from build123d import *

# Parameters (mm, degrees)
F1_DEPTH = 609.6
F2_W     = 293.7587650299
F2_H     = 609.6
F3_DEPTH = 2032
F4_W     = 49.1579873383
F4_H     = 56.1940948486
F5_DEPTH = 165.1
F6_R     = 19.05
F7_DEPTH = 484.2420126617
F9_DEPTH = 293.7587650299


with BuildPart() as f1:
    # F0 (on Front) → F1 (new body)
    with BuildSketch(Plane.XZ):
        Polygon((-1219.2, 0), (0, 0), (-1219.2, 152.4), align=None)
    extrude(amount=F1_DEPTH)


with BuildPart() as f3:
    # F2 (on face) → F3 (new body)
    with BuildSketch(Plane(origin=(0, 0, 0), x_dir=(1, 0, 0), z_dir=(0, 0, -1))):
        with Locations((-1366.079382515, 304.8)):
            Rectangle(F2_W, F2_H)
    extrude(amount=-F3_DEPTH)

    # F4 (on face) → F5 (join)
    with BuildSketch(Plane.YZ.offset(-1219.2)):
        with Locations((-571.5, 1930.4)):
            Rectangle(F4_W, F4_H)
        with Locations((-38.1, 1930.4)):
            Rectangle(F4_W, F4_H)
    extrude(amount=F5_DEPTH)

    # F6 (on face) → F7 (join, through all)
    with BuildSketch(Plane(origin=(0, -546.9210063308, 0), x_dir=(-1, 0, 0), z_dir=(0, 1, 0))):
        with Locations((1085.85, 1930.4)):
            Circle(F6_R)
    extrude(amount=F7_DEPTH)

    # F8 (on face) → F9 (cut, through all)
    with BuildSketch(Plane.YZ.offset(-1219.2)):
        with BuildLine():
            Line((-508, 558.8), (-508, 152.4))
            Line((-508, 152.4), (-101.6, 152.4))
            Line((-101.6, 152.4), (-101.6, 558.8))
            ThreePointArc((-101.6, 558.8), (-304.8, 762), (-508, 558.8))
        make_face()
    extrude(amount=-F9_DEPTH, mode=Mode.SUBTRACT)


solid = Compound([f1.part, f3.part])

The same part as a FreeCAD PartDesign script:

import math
import FreeCAD as App
import Part
import Sketcher

V = App.Vector
Q = App.Units.Quantity


def add_polygon(sketch, points):
    """Adds a closed chain of lines whose ends are joined by coincident constraints."""
    first, n = sketch.GeometryCount, len(points)
    for a, b in zip(points, points[1:] + points[:1]):
        sketch.addGeometry(Part.LineSegment(App.Vector(*a, 0), App.Vector(*b, 0)), False)
    for i in range(n):
        sketch.addConstraint(Sketcher.Constraint("Coincident", first + i, 2, first + (i + 1) % n, 1))

doc = App.newDocument("Part")
body = doc.addObject("PartDesign::Body", "Body")

# Sketch on XZ plane
sketch1 = body.newObject("Sketcher::SketchObject", "Sketch")
sketch1.AttachmentSupport = (doc.getObject("XZ_Plane"), [""])
sketch1.MapMode = "FlatFace"
add_polygon(sketch1, [(-1219.2, 0), (0, 0), (-1219.2, 152.4)])  # lines 0-2
sketch1.addConstraint([
    Sketcher.Constraint("Horizontal", 0),
    Sketcher.Constraint("Vertical", 2),
    Sketcher.Constraint("Coincident", 0, 2, -1, 1),
    Sketcher.Constraint("DistanceX", 0, 1, 0, 2, Q("48 in")),
    Sketcher.Constraint("DistanceY", 2, 2, 2, 1, Q("6 in")),
])
pad1 = body.newObject("PartDesign::Pad", "Pad")
pad1.Profile = sketch1
pad1.Length = Q("24 in")
body2 = doc.addObject("PartDesign::Body", "Body001")

# Sketch on XY plane
sketch2 = body2.newObject("Sketcher::SketchObject", "Sketch001")
sketch2.AttachmentSupport = (doc.getObject("XY_Plane001"), [""])
sketch2.MapMode = "FlatFace"
add_polygon(sketch2, [(-1512.958765, -609.6), (-1512.958765, 0), (-1219.2, 0), (-1219.2, -609.6)])  # lines 0-3
sketch2.addConstraint([
    Sketcher.Constraint("Vertical", 0),
    Sketcher.Constraint("Horizontal", 1),
    Sketcher.Constraint("Vertical", 2),
    Sketcher.Constraint("Horizontal", 3),
    Sketcher.Constraint("PointOnObject", 0, 2, -1),
    Sketcher.Constraint("DistanceY", 0, 1, 0, 2, Q("24 in")),
    Sketcher.Constraint("DistanceX", 1, 2, -1, 1, Q("48 in")),
    Sketcher.Constraint("DistanceX", 1, 1, 1, 2, Q("293.758765 mm")),
])
pad2 = body2.newObject("PartDesign::Pad", "Pad001")
pad2.Profile = sketch2
pad2.Length = Q("80 in")

# Sketch on YZ plane
sketch3 = body2.newObject("Sketcher::SketchObject", "Sketch002")
sketch3.AttachmentSupport = (doc.getObject("YZ_Plane001"), [""])
sketch3.MapMode = "FlatFace"
sketch3.AttachmentOffset = App.Placement(V(0, 0, -48 * 25.4), App.Rotation())
add_polygon(sketch3, [(-596.078994, 1958.497047), (-596.078994, 1902.302953), (-546.921006, 1902.302953), (-546.921006, 1958.497047)])  # lines 0-3
add_polygon(sketch3, [(-62.678994, 1958.497047), (-62.678994, 1902.302953), (-13.521006, 1902.302953), (-13.521006, 1958.497047)])  # lines 4-7
sketch3.addConstraint([
    Sketcher.Constraint("Vertical", 0),
    Sketcher.Constraint("Horizontal", 1),
    Sketcher.Constraint("Vertical", 2),
    Sketcher.Constraint("Horizontal", 3),
    Sketcher.Constraint("Vertical", 4),
    Sketcher.Constraint("Horizontal", 5),
    Sketcher.Constraint("Vertical", 6),
    Sketcher.Constraint("Horizontal", 7),
    Sketcher.Constraint("Horizontal", 1, 2, 4, 2),
    Sketcher.Constraint("Horizontal", 3, 2, 6, 2),
    Sketcher.Constraint("Equal", 3, 5),
    Sketcher.Constraint("DistanceX", 0, 2, 4, 2, Q("21 in")),
    Sketcher.Constraint("DistanceX", 1, 1, 1, 2, Q("49.157987 mm")),
    Sketcher.Constraint("DistanceY", 0, 2, 0, 1, Q("56.194095 mm")),
    Sketcher.Constraint("DistanceX", 0, 2, -1, 1, Q("596.078994 mm")),
    Sketcher.Constraint("DistanceY", -1, 1, 0, 2, Q("1902.302953 mm")),
])
pad3 = body2.newObject("PartDesign::Pad", "Pad002")
pad3.Profile = sketch3
pad3.Length = Q("6.5 in")

# Sketch on XZ plane
sketch4 = body2.newObject("Sketcher::SketchObject", "Sketch003")
sketch4.AttachmentSupport = (doc.getObject("XZ_Plane001"), [""])
sketch4.MapMode = "FlatFace"
sketch4.AttachmentOffset = App.Placement(V(0, 0, 546.921006), App.Rotation())
sketch4.addGeometry(Part.Circle(V(-1085.85, 1930.4, 0), V(0, 0, 1), 19.05), False)
sketch4.addConstraint([
    Sketcher.Constraint("Diameter", 0, Q("1.5 in")),
    Sketcher.Constraint("DistanceY", -1, 1, 0, 3, Q("76 in")),
    Sketcher.Constraint("DistanceX", 0, 3, -1, 1, Q("42.75 in")),
])
pad4 = body2.newObject("PartDesign::Pad", "Pad003")
pad4.Profile = sketch4
pad4.Type = "UpToLast"
pad4.Reversed = True

# Sketch on YZ plane
sketch5 = body2.newObject("Sketcher::SketchObject", "Sketch004")
sketch5.AttachmentSupport = (doc.getObject("YZ_Plane001"), [""])
sketch5.MapMode = "FlatFace"
sketch5.AttachmentOffset = App.Placement(V(0, 0, -48 * 25.4), App.Rotation())
sketch5.addGeometry([
    Part.LineSegment(V(-508, 558.8, 0), V(-508, 152.4, 0)),
    Part.LineSegment(V(-508, 152.4, 0), V(-101.6, 152.4, 0)),
    Part.LineSegment(V(-101.6, 152.4, 0), V(-101.6, 558.8, 0)),
    Part.ArcOfCircle(Part.Circle(V(-304.8, 558.8, 0), V(0, 0, 1), 203.2), math.radians(0), math.radians(180)),
], False)
sketch5.addConstraint([
    Sketcher.Constraint("Coincident", 0, 2, 1, 1),
    Sketcher.Constraint("Coincident", 1, 2, 2, 1),
    Sketcher.Constraint("Tangent", 2, 2, 3, 1),
    Sketcher.Constraint("Tangent", 3, 2, 0, 1),
    Sketcher.Constraint("Vertical", 0),
    Sketcher.Constraint("Horizontal", 1),
    Sketcher.Constraint("Vertical", 2),
    Sketcher.Constraint("Equal", 1, 0),
    Sketcher.Constraint("Radius", 3, Q("8 in")),
    Sketcher.Constraint("DistanceX", 3, 3, -1, 1, Q("12 in")),
    Sketcher.Constraint("DistanceY", -1, 1, 3, 3, Q("22 in")),
])
pocket1 = body2.newObject("PartDesign::Pocket", "Pocket")
pocket1.Profile = sketch5
pocket1.Type = "ThroughAll"

doc.recompute()
